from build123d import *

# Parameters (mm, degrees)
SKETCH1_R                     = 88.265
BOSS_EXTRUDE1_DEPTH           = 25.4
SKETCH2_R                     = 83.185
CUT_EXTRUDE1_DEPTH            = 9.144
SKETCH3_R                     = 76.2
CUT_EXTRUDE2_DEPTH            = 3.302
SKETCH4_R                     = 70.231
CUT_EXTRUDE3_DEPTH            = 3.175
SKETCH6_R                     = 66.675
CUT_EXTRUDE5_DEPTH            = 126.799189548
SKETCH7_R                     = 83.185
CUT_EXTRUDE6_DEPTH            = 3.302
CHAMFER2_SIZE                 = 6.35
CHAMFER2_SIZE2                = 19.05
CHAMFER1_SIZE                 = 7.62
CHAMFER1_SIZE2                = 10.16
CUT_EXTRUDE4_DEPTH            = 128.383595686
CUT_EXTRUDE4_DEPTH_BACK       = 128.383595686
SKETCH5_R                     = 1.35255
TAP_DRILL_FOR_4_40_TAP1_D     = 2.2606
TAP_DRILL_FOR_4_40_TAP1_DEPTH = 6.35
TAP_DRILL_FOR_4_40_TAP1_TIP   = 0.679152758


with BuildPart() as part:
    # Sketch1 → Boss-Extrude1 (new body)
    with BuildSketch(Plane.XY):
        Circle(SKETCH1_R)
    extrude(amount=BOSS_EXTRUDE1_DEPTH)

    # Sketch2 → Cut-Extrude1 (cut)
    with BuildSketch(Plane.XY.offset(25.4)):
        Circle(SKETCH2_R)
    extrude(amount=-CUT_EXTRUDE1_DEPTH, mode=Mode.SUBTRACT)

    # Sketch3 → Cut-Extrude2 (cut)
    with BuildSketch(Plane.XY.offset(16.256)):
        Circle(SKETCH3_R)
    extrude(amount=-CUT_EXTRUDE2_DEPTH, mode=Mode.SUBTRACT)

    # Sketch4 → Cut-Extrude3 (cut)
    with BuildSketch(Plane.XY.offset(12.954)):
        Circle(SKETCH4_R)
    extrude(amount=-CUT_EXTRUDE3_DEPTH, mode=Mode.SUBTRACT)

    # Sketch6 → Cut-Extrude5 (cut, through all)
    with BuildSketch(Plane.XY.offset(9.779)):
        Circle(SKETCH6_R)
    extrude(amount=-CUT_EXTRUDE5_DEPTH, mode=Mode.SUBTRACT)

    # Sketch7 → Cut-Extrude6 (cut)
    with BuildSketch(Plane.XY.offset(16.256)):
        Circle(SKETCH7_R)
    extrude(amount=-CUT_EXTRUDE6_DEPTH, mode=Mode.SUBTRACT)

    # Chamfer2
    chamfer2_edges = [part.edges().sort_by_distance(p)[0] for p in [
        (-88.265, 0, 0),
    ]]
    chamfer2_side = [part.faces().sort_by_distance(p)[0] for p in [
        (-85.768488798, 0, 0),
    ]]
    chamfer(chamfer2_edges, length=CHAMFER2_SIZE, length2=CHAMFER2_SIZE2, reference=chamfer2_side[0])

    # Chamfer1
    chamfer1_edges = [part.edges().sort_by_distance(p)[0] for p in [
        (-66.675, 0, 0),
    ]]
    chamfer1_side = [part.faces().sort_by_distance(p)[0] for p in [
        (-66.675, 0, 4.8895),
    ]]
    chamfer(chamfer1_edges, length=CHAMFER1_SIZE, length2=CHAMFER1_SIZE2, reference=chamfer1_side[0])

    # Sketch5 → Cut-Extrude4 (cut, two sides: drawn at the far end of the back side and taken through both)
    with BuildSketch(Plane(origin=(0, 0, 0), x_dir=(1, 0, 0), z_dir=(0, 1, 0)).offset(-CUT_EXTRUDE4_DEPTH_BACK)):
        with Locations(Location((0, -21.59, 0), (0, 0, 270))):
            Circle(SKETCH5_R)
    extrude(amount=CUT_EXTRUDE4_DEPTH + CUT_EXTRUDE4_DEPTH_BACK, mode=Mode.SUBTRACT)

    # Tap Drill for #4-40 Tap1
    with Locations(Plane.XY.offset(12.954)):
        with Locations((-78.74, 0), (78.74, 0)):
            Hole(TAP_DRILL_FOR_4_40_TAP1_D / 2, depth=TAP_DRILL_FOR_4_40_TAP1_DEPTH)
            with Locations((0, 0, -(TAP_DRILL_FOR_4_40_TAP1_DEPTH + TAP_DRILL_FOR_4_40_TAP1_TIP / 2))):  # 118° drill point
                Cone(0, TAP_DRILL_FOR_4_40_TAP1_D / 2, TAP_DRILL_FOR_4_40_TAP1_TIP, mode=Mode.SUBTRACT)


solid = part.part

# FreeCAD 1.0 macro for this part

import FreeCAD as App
import Part
import Sketcher
Q = App.Units.Quantity


def edges_at(feature, points):
    """Names of the edges that pass closest to the given points."""
    edges = feature.Shape.Edges
    near = lambda p: min(range(len(edges)), key=lambda i: edges[i].distToShape(Part.Vertex(*p))[0])
    return sorted({f"Edge{near(p) + 1}" for p in points})

doc = App.newDocument("Part")
body = doc.addObject("PartDesign::Body", "Body")

# Sketch on XY plane
sketch1 = body.newObject("Sketcher::SketchObject", "Sketch")
sketch1.AttachmentSupport = (doc.getObject("XY_Plane"), [""])
sketch1.MapMode = "FlatFace"
sketch1.addGeometry(Part.Circle(App.Vector(0, 0, 0), App.Vector(0, 0, 1), 88), False)
sketch1.addConstraint([
    Sketcher.Constraint("Coincident", 0, 3, -1, 1),
    Sketcher.Constraint("Diameter", 0, Q("6.95 in")),
])
pad1 = body.newObject("PartDesign::Pad", "Pad")
pad1.Profile = sketch1
pad1.Length = Q("1 in")

# Sketch on XY plane
sketch2 = body.newObject("Sketcher::SketchObject", "Sketch001")
sketch2.AttachmentSupport = (doc.getObject("XY_Plane"), [""])
sketch2.MapMode = "FlatFace"
sketch2.AttachmentOffset = App.Placement(App.Vector(0, 0, 1 * 25.4), App.Rotation())
sketch2.addGeometry(Part.Circle(App.Vector(0, 0, 0), App.Vector(0, 0, 1), 83), False)
sketch2.addConstraint([
    Sketcher.Constraint("Coincident", 0, 3, -1, 1),
    Sketcher.Constraint("Diameter", 0, Q("6.55 in")),
])
pocket1 = body.newObject("PartDesign::Pocket", "Pocket")
pocket1.Profile = sketch2
pocket1.Length = Q("0.36 in")

# Sketch on XY plane
sketch3 = body.newObject("Sketcher::SketchObject", "Sketch002")
sketch3.AttachmentSupport = (doc.getObject("XY_Plane"), [""])
sketch3.MapMode = "FlatFace"
sketch3.AttachmentOffset = App.Placement(App.Vector(0, 0, 0.64 * 25.4), App.Rotation())
sketch3.addGeometry(Part.Circle(App.Vector(0, 0, 0), App.Vector(0, 0, 1), 76), False)
sketch3.addConstraint([
    Sketcher.Constraint("Coincident", 0, 3, -1, 1),
    Sketcher.Constraint("Diameter", 0, Q("6 in")),
])
pocket2 = body.newObject("PartDesign::Pocket", "Pocket001")
pocket2.Profile = sketch3
pocket2.Length = Q("0.13 in")

# Sketch on XY plane
sketch4 = body.newObject("Sketcher::SketchObject", "Sketch003")
sketch4.AttachmentSupport = (doc.getObject("XY_Plane"), [""])
sketch4.MapMode = "FlatFace"
sketch4.AttachmentOffset = App.Placement(App.Vector(0, 0, 0.51 * 25.4), App.Rotation())
sketch4.addGeometry(Part.Circle(App.Vector(0, 0, 0), App.Vector(0, 0, 1), 70), False)
sketch4.addConstraint([
    Sketcher.Constraint("Coincident", 0, 3, -1, 1),
    Sketcher.Constraint("Diameter", 0, Q("5.53 in")),
])
pocket3 = body.newObject("PartDesign::Pocket", "Pocket002")
pocket3.Profile = sketch4
pocket3.Length = Q("0.125 in")

# Sketch on XY plane
sketch5 = body.newObject("Sketcher::SketchObject", "Sketch004")
sketch5.AttachmentSupport = (doc.getObject("XY_Plane"), [""])
sketch5.MapMode = "FlatFace"
sketch5.AttachmentOffset = App.Placement(App.Vector(0, 0, 0.385 * 25.4), App.Rotation())
sketch5.addGeometry(Part.Circle(App.Vector(0, 0, 0), App.Vector(0, 0, 1), 67), False)
sketch5.addConstraint([
    Sketcher.Constraint("Coincident", 0, 3, -1, 1),
    Sketcher.Constraint("Diameter", 0, Q("5.25 in")),
])
pocket4 = body.newObject("PartDesign::Pocket", "Pocket003")
pocket4.Profile = sketch5
pocket4.Type = "ThroughAll"

# Sketch on XY plane
sketch6 = body.newObject("Sketcher::SketchObject", "Sketch005")
sketch6.AttachmentSupport = (doc.getObject("XY_Plane"), [""])
sketch6.MapMode = "FlatFace"
sketch6.AttachmentOffset = App.Placement(App.Vector(0, 0, 0.64 * 25.4), App.Rotation())
sketch6.addGeometry(Part.Circle(App.Vector(0, 0, 0), App.Vector(0, 0, 1), 83), False)
sketch6.addConstraint([
    Sketcher.Constraint("Coincident", 0, 3, -1, 1),
    Sketcher.Constraint("Diameter", 0, Q("6.55 in")),
])
pocket5 = body.newObject("PartDesign::Pocket", "Pocket004")
pocket5.Profile = sketch6
pocket5.Length = Q("0.13 in")
doc.recompute()

chamfer = body.newObject("PartDesign::Chamfer", "Chamfer")
chamfer.Base = (pocket5, edges_at(pocket5, [(-88.265, 0, 0)]))
chamfer.ChamferType = "Two distances"
chamfer.Size = Q("0.25 in")
chamfer.Size2 = Q("0.75 in")
chamfer.FlipDirection = True
doc.recompute()

chamfer2 = body.newObject("PartDesign::Chamfer", "Chamfer001")
chamfer2.Base = (chamfer, edges_at(chamfer, [(-66.675, 0, 0)]))
chamfer2.ChamferType = "Two distances"
chamfer2.Size = Q("0.3 in")
chamfer2.Size2 = Q("0.4 in")
chamfer2.FlipDirection = True

# Sketch on XZ plane
sketch7 = body.newObject("Sketcher::SketchObject", "Sketch006")
sketch7.AttachmentSupport = (doc.getObject("XZ_Plane"), [""])
sketch7.MapMode = "FlatFace"
sketch7.addGeometry(Part.Circle(App.Vector(0, 21.6, 0), App.Vector(0, 0, 1), 1.4), False)
sketch7.addConstraint([
    Sketcher.Constraint("PointOnObject", 0, 3, -2),
    Sketcher.Constraint("Diameter", 0, Q("0.1065 in")),
    Sketcher.Constraint("DistanceY", -1, 1, 0, 3, Q("0.85 in")),
])
pocket6 = body.newObject("PartDesign::Pocket", "Pocket005")
pocket6.Profile = sketch7
pocket6.Type = "ThroughAll"
pocket6.Midplane = True

# Sketch on XY plane
sketch8 = body.newObject("Sketcher::SketchObject", "Sketch007")
sketch8.AttachmentSupport = (doc.getObject("XY_Plane"), [""])
sketch8.MapMode = "FlatFace"
sketch8.AttachmentOffset = App.Placement(App.Vector(0, 0, 0.51 * 25.4), App.Rotation())
sketch8.addGeometry([
    Part.Circle(App.Vector(-78.7, 0, 0), App.Vector(0, 0, 1), 1.1),
    Part.Circle(App.Vector(78.7, 0, 0), App.Vector(0, 0, 1), 1.1),
], False)
sketch8.addConstraint([
    Sketcher.Constraint("Equal", 0, 1),
    Sketcher.Constraint("Symmetric", 0, 3, 1, 3, -1, 1),
    Sketcher.Constraint("PointOnObject", 0, 3, -1),
    Sketcher.Constraint("Diameter", 0, Q("0.089 in")),
    Sketcher.Constraint("DistanceX", 0, 3, -1, 1, Q("3.1 in")),
])
doc.recompute()
hole = body.newObject("PartDesign::Hole", "Hole")
hole.Profile = sketch8
hole.ThreadType = "None"
hole.Diameter = Q("0.089 in")
hole.DepthType = "Dimension"
hole.Depth = Q("0.25 in")
hole.DrillPoint = "Angled"
hole.DrillPointAngle = 118

doc.recompute()
